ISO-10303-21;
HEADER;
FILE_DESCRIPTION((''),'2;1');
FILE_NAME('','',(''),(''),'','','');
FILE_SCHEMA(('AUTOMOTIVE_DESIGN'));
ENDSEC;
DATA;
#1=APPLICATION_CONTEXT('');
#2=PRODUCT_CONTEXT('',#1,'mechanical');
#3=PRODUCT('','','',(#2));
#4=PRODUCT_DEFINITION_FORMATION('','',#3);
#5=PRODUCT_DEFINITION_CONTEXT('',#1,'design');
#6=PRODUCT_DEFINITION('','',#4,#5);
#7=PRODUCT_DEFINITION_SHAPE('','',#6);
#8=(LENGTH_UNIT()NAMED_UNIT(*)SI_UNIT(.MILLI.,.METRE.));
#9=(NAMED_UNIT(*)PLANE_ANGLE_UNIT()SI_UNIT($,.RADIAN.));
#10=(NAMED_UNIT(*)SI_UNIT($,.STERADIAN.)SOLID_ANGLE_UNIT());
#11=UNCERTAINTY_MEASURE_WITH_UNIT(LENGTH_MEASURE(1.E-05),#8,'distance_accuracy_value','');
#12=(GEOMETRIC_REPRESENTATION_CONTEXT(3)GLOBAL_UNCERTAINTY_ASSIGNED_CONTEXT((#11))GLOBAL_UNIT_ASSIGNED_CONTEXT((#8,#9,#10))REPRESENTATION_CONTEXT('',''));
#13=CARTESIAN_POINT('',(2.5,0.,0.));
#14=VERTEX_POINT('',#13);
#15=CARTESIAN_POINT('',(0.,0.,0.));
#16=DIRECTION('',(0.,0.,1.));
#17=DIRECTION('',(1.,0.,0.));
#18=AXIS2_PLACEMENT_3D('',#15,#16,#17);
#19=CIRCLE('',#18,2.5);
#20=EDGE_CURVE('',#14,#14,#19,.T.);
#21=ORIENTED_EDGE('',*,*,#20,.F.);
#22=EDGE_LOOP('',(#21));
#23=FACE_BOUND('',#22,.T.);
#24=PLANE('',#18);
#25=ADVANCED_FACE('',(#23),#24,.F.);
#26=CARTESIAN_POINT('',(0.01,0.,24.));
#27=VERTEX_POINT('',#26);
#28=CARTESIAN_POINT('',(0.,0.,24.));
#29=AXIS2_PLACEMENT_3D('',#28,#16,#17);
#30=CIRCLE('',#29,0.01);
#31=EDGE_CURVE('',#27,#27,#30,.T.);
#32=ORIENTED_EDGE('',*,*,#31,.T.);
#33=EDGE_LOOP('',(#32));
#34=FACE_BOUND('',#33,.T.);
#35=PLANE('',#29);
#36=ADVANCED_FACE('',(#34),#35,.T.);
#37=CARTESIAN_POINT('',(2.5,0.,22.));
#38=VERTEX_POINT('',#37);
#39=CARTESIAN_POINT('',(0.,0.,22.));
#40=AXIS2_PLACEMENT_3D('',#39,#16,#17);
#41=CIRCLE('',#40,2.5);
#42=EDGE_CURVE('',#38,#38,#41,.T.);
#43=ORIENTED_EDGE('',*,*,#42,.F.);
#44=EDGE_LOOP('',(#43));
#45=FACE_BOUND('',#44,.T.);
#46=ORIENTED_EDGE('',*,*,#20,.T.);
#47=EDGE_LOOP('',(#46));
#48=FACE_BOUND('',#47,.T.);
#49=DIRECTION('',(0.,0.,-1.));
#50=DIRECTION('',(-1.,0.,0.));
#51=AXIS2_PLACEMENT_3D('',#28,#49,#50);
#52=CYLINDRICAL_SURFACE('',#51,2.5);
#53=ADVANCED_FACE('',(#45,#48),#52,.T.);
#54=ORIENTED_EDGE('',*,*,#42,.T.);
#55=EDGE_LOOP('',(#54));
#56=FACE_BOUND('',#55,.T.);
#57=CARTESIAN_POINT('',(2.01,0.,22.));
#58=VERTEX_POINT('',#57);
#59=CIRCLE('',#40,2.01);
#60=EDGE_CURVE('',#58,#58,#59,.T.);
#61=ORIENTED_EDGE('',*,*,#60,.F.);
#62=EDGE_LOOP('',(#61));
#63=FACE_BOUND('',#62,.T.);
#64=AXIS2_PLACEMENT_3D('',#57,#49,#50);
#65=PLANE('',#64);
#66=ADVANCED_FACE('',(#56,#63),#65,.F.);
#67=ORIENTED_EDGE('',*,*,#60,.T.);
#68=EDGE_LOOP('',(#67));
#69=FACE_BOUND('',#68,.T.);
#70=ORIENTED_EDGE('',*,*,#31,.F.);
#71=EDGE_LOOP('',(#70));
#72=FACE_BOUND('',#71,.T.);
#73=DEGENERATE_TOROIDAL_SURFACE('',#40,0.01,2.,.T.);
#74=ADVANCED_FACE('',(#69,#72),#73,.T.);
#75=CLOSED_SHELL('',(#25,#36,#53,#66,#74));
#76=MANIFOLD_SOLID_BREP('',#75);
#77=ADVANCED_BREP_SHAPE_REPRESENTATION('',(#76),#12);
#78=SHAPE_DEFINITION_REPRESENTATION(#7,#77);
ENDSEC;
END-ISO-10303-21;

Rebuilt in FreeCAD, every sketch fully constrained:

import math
import FreeCAD as App
import Part
import Sketcher
from FreeCAD import Vector
Q = App.Units.Quantity

doc = App.newDocument("Part")
body = doc.addObject("PartDesign::Body", "Body")

# Sketch on XY plane
sketch1 = body.newObject("Sketcher::SketchObject", "Sketch")
sketch1.AttachmentSupport = (doc.getObject("XY_Plane"), [""])
sketch1.MapMode = "FlatFace"
sketch1.addGeometry(Part.Circle(Vector(0, 0, 0), Vector(0, 0, 1), 2.5), False)
sketch1.addConstraint(Sketcher.Constraint("Coincident", 0, 3, -1, 1))
sketch1.addConstraint(Sketcher.Constraint("Diameter", 0, Q("5 mm")))
pad1 = body.newObject("PartDesign::Pad", "Pad")
pad1.Profile = sketch1
pad1.Length = 24

# Sketch on XZ plane
sketch2 = body.newObject("Sketcher::SketchObject", "Sketch001")
sketch2.AttachmentSupport = (doc.getObject("XZ_Plane"), [""])
sketch2.MapMode = "FlatFace"
sketch2.addGeometry(Part.LineSegment(Vector(2.5, 22, 0), Vector(2.01, 22, 0)), False)
sketch2.addGeometry(Part.ArcOfCircle(Part.Circle(Vector(0.01, 22, 0), Vector(0, 0, 1), 2), math.radians(0), math.radians(90)), False)
sketch2.addGeometry(Part.LineSegment(Vector(0.01, 24, 0), Vector(2.5, 24, 0)), False)
sketch2.addGeometry(Part.LineSegment(Vector(2.5, 24, 0), Vector(2.5, 22, 0)), False)
sketch2.addConstraint(Sketcher.Constraint("Coincident", 0, 2, 1, 1))
sketch2.addConstraint(Sketcher.Constraint("Tangent", 1, 2, 2, 1))
sketch2.addConstraint(Sketcher.Constraint("Coincident", 2, 2, 3, 1))
sketch2.addConstraint(Sketcher.Constraint("Coincident", 3, 2, 0, 1))
sketch2.addConstraint(Sketcher.Constraint("Horizontal", 0))
sketch2.addConstraint(Sketcher.Constraint("Horizontal", 2))
sketch2.addConstraint(Sketcher.Constraint("Vertical", 3))
sketch2.addConstraint(Sketcher.Constraint("Horizontal", 1, 3, 0, 2))
sketch2.addConstraint(Sketcher.Constraint("Radius", 1, Q("2 mm")))
sketch2.addConstraint(Sketcher.Constraint("DistanceY", -1, 1, 1, 3, Q("22 mm")))
sketch2.addConstraint(Sketcher.Constraint("DistanceX", 0, 2, 0, 1, Q("0.49 mm")))
sketch2.addConstraint(Sketcher.Constraint("DistanceX", -1, 1, 2, 2, Q("2.5 mm")))
groove = body.newObject("PartDesign::Groove", "Groove")
groove.Profile = sketch2
groove.ReferenceAxis = (sketch2, ["V_Axis"])
groove.Angle = 360

doc.recompute()
